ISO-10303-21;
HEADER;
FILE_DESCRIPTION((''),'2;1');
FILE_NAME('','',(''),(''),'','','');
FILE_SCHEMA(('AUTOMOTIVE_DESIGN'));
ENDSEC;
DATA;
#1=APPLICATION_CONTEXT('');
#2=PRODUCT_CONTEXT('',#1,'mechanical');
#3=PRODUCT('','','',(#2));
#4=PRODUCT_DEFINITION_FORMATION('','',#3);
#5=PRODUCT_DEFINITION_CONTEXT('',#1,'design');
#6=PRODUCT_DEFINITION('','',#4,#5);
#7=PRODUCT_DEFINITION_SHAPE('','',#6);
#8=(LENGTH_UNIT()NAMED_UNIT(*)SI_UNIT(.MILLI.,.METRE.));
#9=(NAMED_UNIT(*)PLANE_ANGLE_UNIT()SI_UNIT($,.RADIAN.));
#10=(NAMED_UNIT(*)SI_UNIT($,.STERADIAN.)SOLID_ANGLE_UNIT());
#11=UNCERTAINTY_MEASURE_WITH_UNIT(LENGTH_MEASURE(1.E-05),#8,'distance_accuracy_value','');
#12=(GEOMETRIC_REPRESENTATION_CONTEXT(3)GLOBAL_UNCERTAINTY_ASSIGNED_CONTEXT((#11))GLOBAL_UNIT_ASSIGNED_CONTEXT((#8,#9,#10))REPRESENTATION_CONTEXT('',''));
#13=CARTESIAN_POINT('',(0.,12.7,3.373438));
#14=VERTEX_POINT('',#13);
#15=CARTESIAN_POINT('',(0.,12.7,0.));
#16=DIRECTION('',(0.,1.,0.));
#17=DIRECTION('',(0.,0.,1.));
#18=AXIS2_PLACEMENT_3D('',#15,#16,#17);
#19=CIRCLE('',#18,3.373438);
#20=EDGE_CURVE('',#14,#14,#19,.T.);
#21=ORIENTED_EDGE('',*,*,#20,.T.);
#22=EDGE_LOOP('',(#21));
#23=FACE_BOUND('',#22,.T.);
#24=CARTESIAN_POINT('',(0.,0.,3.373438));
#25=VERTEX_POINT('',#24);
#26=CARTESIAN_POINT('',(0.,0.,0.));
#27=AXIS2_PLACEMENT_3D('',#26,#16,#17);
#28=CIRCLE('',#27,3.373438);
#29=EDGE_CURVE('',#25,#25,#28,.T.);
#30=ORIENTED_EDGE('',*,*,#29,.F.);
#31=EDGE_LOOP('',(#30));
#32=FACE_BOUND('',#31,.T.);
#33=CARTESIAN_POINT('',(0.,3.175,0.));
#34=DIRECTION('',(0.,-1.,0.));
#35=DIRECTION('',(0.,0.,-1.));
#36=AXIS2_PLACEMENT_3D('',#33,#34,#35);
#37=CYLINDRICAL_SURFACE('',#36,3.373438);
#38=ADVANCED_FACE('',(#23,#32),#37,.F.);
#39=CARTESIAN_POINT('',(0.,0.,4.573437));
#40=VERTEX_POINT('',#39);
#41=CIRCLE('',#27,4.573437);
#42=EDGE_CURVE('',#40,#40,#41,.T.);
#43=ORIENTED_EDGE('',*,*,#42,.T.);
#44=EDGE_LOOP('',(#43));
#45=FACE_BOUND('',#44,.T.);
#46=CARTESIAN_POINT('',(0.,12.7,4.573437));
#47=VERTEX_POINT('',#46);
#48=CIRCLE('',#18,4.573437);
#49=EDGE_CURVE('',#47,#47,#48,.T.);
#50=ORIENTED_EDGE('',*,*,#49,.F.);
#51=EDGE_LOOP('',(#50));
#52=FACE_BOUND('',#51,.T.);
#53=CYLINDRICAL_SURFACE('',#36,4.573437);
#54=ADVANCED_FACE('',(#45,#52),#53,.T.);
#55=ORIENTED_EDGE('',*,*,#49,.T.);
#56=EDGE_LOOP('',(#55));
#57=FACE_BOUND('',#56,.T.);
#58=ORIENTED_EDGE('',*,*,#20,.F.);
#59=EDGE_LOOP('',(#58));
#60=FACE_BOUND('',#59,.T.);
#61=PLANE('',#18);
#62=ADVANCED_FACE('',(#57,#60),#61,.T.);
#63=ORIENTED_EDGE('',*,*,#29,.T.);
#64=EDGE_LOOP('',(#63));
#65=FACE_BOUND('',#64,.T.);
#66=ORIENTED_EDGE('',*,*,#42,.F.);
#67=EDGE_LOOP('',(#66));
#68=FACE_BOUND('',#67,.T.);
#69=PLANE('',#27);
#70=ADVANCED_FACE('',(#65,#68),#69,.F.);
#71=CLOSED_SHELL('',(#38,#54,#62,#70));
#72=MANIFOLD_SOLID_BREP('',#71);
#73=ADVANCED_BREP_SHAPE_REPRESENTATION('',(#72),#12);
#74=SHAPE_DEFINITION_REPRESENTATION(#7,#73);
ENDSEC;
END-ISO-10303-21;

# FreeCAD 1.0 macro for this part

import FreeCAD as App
import Part
import Sketcher

V = App.Vector
Q = App.Units.Quantity

doc = App.newDocument("Part")
body = doc.addObject("PartDesign::Body", "Body")

sketch1 = body.newObject("Sketcher::SketchObject", "Sketch")
sketch1.AttachmentSupport = (doc.getObject("XZ_Plane"), [""])
sketch1.MapMode = "FlatFace"
sketch1.addGeometry([
    Part.Circle(V(0, 0, 0), V(0, 0, 1), 4.6),
    Part.Circle(V(0, 0, 0), V(0, 0, 1), 3.4),
], False)
sketch1.addConstraint([
    Sketcher.Constraint("Coincident", 0, 3, -1, 1),
    Sketcher.Constraint("Coincident", 1, 3, -1, 1),
    Sketcher.Constraint("Diameter", 1, Q("0.265625 in")),
    Sketcher.Constraint("Diameter", 0, Q("9.146875 mm")),
])
pad1 = body.newObject("PartDesign::Pad", "Pad")
pad1.Profile = sketch1
pad1.Length = Q("0.125 in")
pad1.Reversed = True

sketch2 = body.newObject("Sketcher::SketchObject", "Sketch001")
sketch2.AttachmentSupport = (doc.getObject("XZ_Plane"), [""])
sketch2.MapMode = "FlatFace"
sketch2.AttachmentOffset = App.Placement(V(0, 0, -0.125 * 25.4), App.Rotation())
sketch2.addGeometry([
    Part.Circle(V(0, 0, 0), V(0, 0, 1), 4.6),
    Part.Circle(V(0, 0, 0), V(0, 0, 1), 3.4),
], False)
sketch2.addConstraint([
    Sketcher.Constraint("Coincident", 0, 3, -1, 1),
    Sketcher.Constraint("Coincident", 1, 3, -1, 1),
    Sketcher.Constraint("Diameter", 1, Q("0.265625 in")),
    Sketcher.Constraint("Diameter", 0, Q("9.146875 mm")),
])
pad2 = body.newObject("PartDesign::Pad", "Pad001")
pad2.Profile = sketch2
pad2.Length = Q("0.375 in")
pad2.Reversed = True

doc.recompute()
